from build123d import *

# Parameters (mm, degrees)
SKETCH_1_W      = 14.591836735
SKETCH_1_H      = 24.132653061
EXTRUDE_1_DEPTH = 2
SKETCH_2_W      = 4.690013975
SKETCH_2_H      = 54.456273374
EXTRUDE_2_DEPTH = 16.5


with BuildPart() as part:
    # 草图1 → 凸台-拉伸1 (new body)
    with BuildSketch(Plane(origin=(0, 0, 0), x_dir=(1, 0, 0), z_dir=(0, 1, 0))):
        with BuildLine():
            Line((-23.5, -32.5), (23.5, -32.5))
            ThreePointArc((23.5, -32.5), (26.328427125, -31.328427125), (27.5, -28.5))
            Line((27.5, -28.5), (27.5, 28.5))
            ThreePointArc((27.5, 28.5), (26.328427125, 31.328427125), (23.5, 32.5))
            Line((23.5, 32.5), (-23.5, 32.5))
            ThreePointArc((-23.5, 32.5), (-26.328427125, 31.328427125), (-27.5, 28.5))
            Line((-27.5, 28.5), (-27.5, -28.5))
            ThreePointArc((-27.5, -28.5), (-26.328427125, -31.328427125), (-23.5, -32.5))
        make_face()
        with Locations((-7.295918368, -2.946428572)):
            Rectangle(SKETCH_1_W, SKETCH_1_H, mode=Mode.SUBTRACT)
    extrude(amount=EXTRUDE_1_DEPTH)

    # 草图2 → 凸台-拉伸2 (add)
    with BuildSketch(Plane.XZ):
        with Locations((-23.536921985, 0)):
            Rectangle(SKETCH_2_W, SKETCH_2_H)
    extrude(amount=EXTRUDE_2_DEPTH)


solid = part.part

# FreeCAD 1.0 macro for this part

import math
import FreeCAD as App
import Part
import Sketcher
Q = App.Units.Quantity

doc = App.newDocument("Part")
params = doc.addObject("Spreadsheet::Sheet", "Params")
for row, (alias, value) in enumerate([
    ("sketch1_radius", "4 mm"),
    ("sketch1_width", "47 mm"),
    ("sketch1_height", "57 mm"),
    ("pad1_length", "2 mm"),
    ("pad2_length", "16.5 mm"),
], start=1):
    params.set(f"A{row}", alias)
    params.set(f"B{row}", "=" + value)
    params.setAlias(f"B{row}", alias)

body = doc.addObject("PartDesign::Body", "Body")

# Sketch on XZ plane
sketch1 = doc.addObject("Sketcher::SketchObject", "Sketch")
body.addObject(sketch1)
sketch1.AttachmentSupport = (doc.XZ_Plane, [""])
sketch1.MapMode = "FlatFace"
sketch1.addGeometry([
    Part.LineSegment(App.Vector(-23.5, 32.5, 0), App.Vector(23.5, 32.5, 0)),  # 0
    Part.ArcOfCircle(Part.Circle(App.Vector(23.5, 28.5, 0), App.Vector(0, 0, 1), 4), math.radians(0), math.radians(90)),  # 1
    Part.LineSegment(App.Vector(27.5, 28.5, 0), App.Vector(27.5, -28.5, 0)),  # 2
    Part.ArcOfCircle(Part.Circle(App.Vector(23.5, -28.5, 0), App.Vector(0, 0, 1), 4), math.radians(-90), math.radians(0)),  # 3
    Part.LineSegment(App.Vector(23.5, -32.5, 0), App.Vector(-23.5, -32.5, 0)),  # 4
    Part.ArcOfCircle(Part.Circle(App.Vector(-23.5, -28.5, 0), App.Vector(0, 0, 1), 4), math.radians(180), math.radians(270)),  # 5
    Part.LineSegment(App.Vector(-27.5, -28.5, 0), App.Vector(-27.5, 28.5, 0)),  # 6
    Part.ArcOfCircle(Part.Circle(App.Vector(-23.5, 28.5, 0), App.Vector(0, 0, 1), 4), math.radians(90), math.radians(180)),  # 7
    Part.LineSegment(App.Vector(0, 15, 0), App.Vector(-14.6, 15, 0)),  # 8
    Part.LineSegment(App.Vector(-14.6, 15, 0), App.Vector(-14.6, -9.1, 0)),  # 9
    Part.LineSegment(App.Vector(-14.6, -9.1, 0), App.Vector(0, -9.1, 0)),  # 10
    Part.LineSegment(App.Vector(0, -9.1, 0), App.Vector(0, 15, 0)),  # 11
], False)
sketch1.addConstraint([
    Sketcher.Constraint("Tangent", 0, 2, 1, 2),
    Sketcher.Constraint("Tangent", 1, 1, 2, 1),
    Sketcher.Constraint("Tangent", 2, 2, 3, 2),
    Sketcher.Constraint("Tangent", 3, 1, 4, 1),
    Sketcher.Constraint("Tangent", 4, 2, 5, 2),
    Sketcher.Constraint("Tangent", 5, 1, 6, 1),
    Sketcher.Constraint("Tangent", 6, 2, 7, 2),
    Sketcher.Constraint("Tangent", 7, 1, 0, 1),
    Sketcher.Constraint("Coincident", 8, 2, 9, 1),
    Sketcher.Constraint("Coincident", 9, 2, 10, 1),
    Sketcher.Constraint("Coincident", 10, 2, 11, 1),
    Sketcher.Constraint("Coincident", 11, 2, 8, 1),
    Sketcher.Constraint("Horizontal", 0),
    Sketcher.Constraint("Vertical", 2),
    Sketcher.Constraint("Horizontal", 4),
    Sketcher.Constraint("Vertical", 6),
    Sketcher.Constraint("Horizontal", 8),
    Sketcher.Constraint("Vertical", 9),
    Sketcher.Constraint("Horizontal", 10),
    Sketcher.Constraint("Vertical", 11),
    Sketcher.Constraint("Equal", 1, 3),
    Sketcher.Constraint("Equal", 3, 5),
    Sketcher.Constraint("Equal", 5, 7),
    Sketcher.Constraint("Symmetric", 1, 3, 5, 3, -1, 1),
    Sketcher.Constraint("PointOnObject", 10, 2, -2),
    Sketcher.Constraint("Radius", 1, Q("4 mm")),
    Sketcher.Constraint("DistanceX", 0, 1, 0, 2, Q("47 mm")),
    Sketcher.Constraint("DistanceY", 2, 2, 2, 1, Q("57 mm")),
    Sketcher.Constraint("DistanceX", 8, 2, 8, 1, Q("14.591837 mm")),
    Sketcher.Constraint("DistanceY", 9, 2, 9, 1, Q("24.132653 mm")),
    Sketcher.Constraint("DistanceY", -1, 1, 8, 2, Q("15.012755 mm")),
])
sketch1.setExpression("Constraints[25]", "Params.sketch1_radius")
sketch1.setExpression("Constraints[26]", "Params.sketch1_width")
sketch1.setExpression("Constraints[27]", "Params.sketch1_height")
pad1 = doc.addObject("PartDesign::Pad", "Pad")
body.addObject(pad1)
pad1.Profile = sketch1
pad1.setExpression("Length", "Params.pad1_length")
pad1.Reversed = True

# Sketch on XZ plane
sketch2 = doc.addObject("Sketcher::SketchObject", "Sketch001")
body.addObject(sketch2)
sketch2.AttachmentSupport = (doc.XZ_Plane, [""])
sketch2.MapMode = "FlatFace"
sketch2.addGeometry([
    Part.LineSegment(App.Vector(-25.9, 27.2, 0), App.Vector(-25.9, -27.2, 0)),
    Part.LineSegment(App.Vector(-25.9, -27.2, 0), App.Vector(-21.2, -27.2, 0)),
    Part.LineSegment(App.Vector(-21.2, -27.2, 0), App.Vector(-21.2, 27.2, 0)),
    Part.LineSegment(App.Vector(-21.2, 27.2, 0), App.Vector(-25.9, 27.2, 0)),
], False)
sketch2.addConstraint([
    Sketcher.Constraint("Coincident", 0, 2, 1, 1),
    Sketcher.Constraint("Coincident", 1, 2, 2, 1),
    Sketcher.Constraint("Coincident", 2, 2, 3, 1),
    Sketcher.Constraint("Coincident", 3, 2, 0, 1),
    Sketcher.Constraint("Vertical", 0),
    Sketcher.Constraint("Horizontal", 1),
    Sketcher.Constraint("Vertical", 2),
    Sketcher.Constraint("Horizontal", 3),
    Sketcher.Constraint("DistanceX", 1, 1, 1, 2, Q("4.690014 mm")),
    Sketcher.Constraint("DistanceY", 0, 2, 0, 1, Q("54.456273 mm")),
    Sketcher.Constraint("DistanceX", 0, 2, -1, 1, Q("25.881929 mm")),
    Sketcher.Constraint("DistanceY", 0, 2, -1, 1, Q("27.228137 mm")),
])
pad2 = doc.addObject("PartDesign::Pad", "Pad001")
body.addObject(pad2)
pad2.Profile = sketch2
pad2.setExpression("Length", "Params.pad2_length")

doc.recompute()
